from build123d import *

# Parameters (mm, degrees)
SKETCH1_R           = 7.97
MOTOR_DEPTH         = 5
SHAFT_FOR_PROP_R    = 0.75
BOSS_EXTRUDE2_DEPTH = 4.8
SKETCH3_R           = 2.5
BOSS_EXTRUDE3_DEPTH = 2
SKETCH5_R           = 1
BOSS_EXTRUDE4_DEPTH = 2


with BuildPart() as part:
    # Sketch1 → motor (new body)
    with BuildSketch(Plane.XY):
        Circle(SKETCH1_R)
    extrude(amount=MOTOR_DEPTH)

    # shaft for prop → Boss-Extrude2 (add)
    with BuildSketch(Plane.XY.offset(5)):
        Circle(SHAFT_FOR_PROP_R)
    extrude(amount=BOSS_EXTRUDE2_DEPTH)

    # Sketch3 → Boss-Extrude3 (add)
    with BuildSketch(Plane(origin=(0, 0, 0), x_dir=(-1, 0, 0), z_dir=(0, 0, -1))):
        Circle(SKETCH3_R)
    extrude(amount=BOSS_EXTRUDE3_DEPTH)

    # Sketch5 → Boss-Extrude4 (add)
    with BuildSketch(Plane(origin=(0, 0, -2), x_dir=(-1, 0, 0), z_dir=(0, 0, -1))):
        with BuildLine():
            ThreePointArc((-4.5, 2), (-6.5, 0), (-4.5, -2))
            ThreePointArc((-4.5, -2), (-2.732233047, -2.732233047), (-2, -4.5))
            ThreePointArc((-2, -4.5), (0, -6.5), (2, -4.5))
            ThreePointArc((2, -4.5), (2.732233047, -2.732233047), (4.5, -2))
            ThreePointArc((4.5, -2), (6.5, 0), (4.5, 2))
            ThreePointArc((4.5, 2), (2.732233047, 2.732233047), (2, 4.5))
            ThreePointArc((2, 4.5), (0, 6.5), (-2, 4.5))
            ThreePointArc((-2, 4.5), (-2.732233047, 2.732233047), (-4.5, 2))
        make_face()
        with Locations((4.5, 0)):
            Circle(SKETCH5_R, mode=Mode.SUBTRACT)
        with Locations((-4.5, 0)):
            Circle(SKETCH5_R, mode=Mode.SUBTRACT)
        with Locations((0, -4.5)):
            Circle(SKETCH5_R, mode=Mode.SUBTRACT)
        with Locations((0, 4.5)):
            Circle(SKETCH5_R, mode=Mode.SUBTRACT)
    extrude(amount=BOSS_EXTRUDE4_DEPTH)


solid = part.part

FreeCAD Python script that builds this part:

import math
import FreeCAD as App
import Part
import Sketcher
from FreeCAD import Vector

doc = App.newDocument("Part")
body = doc.addObject("PartDesign::Body", "Body")

sketch1 = doc.addObject("Sketcher::SketchObject", "Sketch")
body.addObject(sketch1)
sketch1.AttachmentSupport = (doc.XY_Plane, [""])
sketch1.MapMode = "FlatFace"
sketch1.addGeometry(Part.Circle(Vector(0, 0, 0), Vector(0, 0, 1), 8), False)
sketch1.addConstraint(Sketcher.Constraint("Coincident", 0, 3, -1, 1))
sketch1.addConstraint(Sketcher.Constraint("Diameter", 0, 15.94))
pad1 = doc.addObject("PartDesign::Pad", "Pad")
body.addObject(pad1)
pad1.Profile = sketch1
pad1.Length = 5

sketch2 = doc.addObject("Sketcher::SketchObject", "Sketch001")
body.addObject(sketch2)
sketch2.AttachmentSupport = (doc.XY_Plane, [""])
sketch2.MapMode = "FlatFace"
sketch2.AttachmentOffset = App.Placement(Vector(0, 0, 5), App.Rotation())
sketch2.addGeometry(Part.Circle(Vector(0, 0, 0), Vector(0, 0, 1), 0.8), False)
sketch2.addConstraint(Sketcher.Constraint("Coincident", 0, 3, -1, 1))
sketch2.addConstraint(Sketcher.Constraint("Diameter", 0, 1.5))
pad2 = doc.addObject("PartDesign::Pad", "Pad001")
body.addObject(pad2)
pad2.Profile = sketch2
pad2.Length = 4.8

sketch3 = doc.addObject("Sketcher::SketchObject", "Sketch002")
body.addObject(sketch3)
sketch3.AttachmentSupport = (doc.XY_Plane, [""])
sketch3.MapMode = "FlatFace"
sketch3.addGeometry(Part.Circle(Vector(0, 0, 0), Vector(0, 0, 1), 2.5), False)
sketch3.addConstraint(Sketcher.Constraint("Coincident", 0, 3, -1, 1))
sketch3.addConstraint(Sketcher.Constraint("Diameter", 0, 5.0))
pad3 = doc.addObject("PartDesign::Pad", "Pad002")
body.addObject(pad3)
pad3.Profile = sketch3
pad3.Length = 2
pad3.Reversed = True

sketch4 = doc.addObject("Sketcher::SketchObject", "Sketch003")
body.addObject(sketch4)
sketch4.AttachmentSupport = (doc.XY_Plane, [""])
sketch4.MapMode = "FlatFace"
sketch4.AttachmentOffset = App.Placement(Vector(0, 0, -2), App.Rotation())
sketch4.addGeometry(Part.ArcOfCircle(Part.Circle(Vector(4.5, 0, 0), Vector(0, 0, 1), 2), math.radians(-90), math.radians(90)), False)
sketch4.addGeometry(Part.ArcOfCircle(Part.Circle(Vector(4.5, -4.5, 0), Vector(0, 0, 1), 2.5), math.radians(90), math.radians(180)), False)
sketch4.addGeometry(Part.ArcOfCircle(Part.Circle(Vector(0, -4.5, 0), Vector(0, 0, 1), 2), math.radians(180), math.radians(360)), False)
sketch4.addGeometry(Part.ArcOfCircle(Part.Circle(Vector(-4.5, -4.5, 0), Vector(0, 0, 1), 2.5), math.radians(0), math.radians(90)), False)
sketch4.addGeometry(Part.ArcOfCircle(Part.Circle(Vector(-4.5, 0, 0), Vector(0, 0, 1), 2), math.radians(90), math.radians(270)), False)
sketch4.addGeometry(Part.ArcOfCircle(Part.Circle(Vector(-4.5, 4.5, 0), Vector(0, 0, 1), 2.5), math.radians(-90), math.radians(0)), False)
sketch4.addGeometry(Part.ArcOfCircle(Part.Circle(Vector(0, 4.5, 0), Vector(0, 0, 1), 2), math.radians(0), math.radians(180)), False)
sketch4.addGeometry(Part.ArcOfCircle(Part.Circle(Vector(4.5, 4.5, 0), Vector(0, 0, 1), 2.5), math.radians(180), math.radians(270)), False)
sketch4.addGeometry(Part.Circle(Vector(0, -4.5, 0), Vector(0, 0, 1), 1), False)
sketch4.addGeometry(Part.Circle(Vector(4.5, 0, 0), Vector(0, 0, 1), 1), False)
sketch4.addGeometry(Part.Circle(Vector(-4.5, 0, 0), Vector(0, 0, 1), 1), False)
sketch4.addGeometry(Part.Circle(Vector(0, 4.5, 0), Vector(0, 0, 1), 1), False)
sketch4.addConstraint(Sketcher.Constraint("Tangent", 0, 1, 1, 1))
sketch4.addConstraint(Sketcher.Constraint("Tangent", 1, 2, 2, 2))
sketch4.addConstraint(Sketcher.Constraint("Tangent", 2, 1, 3, 1))
sketch4.addConstraint(Sketcher.Constraint("Tangent", 3, 2, 4, 2))
sketch4.addConstraint(Sketcher.Constraint("Tangent", 4, 1, 5, 1))
sketch4.addConstraint(Sketcher.Constraint("Tangent", 5, 2, 6, 2))
sketch4.addConstraint(Sketcher.Constraint("Tangent", 6, 1, 7, 1))
sketch4.addConstraint(Sketcher.Constraint("Tangent", 7, 2, 0, 2))
sketch4.addConstraint(Sketcher.Constraint("Coincident", 8, 3, 2, 3))
sketch4.addConstraint(Sketcher.Constraint("Coincident", 9, 3, 0, 3))
sketch4.addConstraint(Sketcher.Constraint("Coincident", 10, 3, 4, 3))
sketch4.addConstraint(Sketcher.Constraint("Coincident", 11, 3, 6, 3))
sketch4.addConstraint(Sketcher.Constraint("Equal", 0, 2))
sketch4.addConstraint(Sketcher.Constraint("Equal", 1, 3))
sketch4.addConstraint(Sketcher.Constraint("Equal", 2, 4))
sketch4.addConstraint(Sketcher.Constraint("Equal", 3, 5))
sketch4.addConstraint(Sketcher.Constraint("Equal", 4, 6))
sketch4.addConstraint(Sketcher.Constraint("Equal", 5, 7))
sketch4.addConstraint(Sketcher.Constraint("Equal", 8, 9))
sketch4.addConstraint(Sketcher.Constraint("Equal", 9, 10))
sketch4.addConstraint(Sketcher.Constraint("Equal", 10, 11))
sketch4.addConstraint(Sketcher.Constraint("Symmetric", 0, 3, 4, 3, -1, 1))
sketch4.addConstraint(Sketcher.Constraint("Symmetric", 2, 3, 6, 3, -1, 1))
sketch4.addConstraint(Sketcher.Constraint("Symmetric", 1, 3, 3, 3, -2))
sketch4.addConstraint(Sketcher.Constraint("Horizontal", 1, 3, 2, 3))
sketch4.addConstraint(Sketcher.Constraint("Vertical", 0, 3, 1, 3))
sketch4.addConstraint(Sketcher.Constraint("Diameter", 8, 2.0))
sketch4.addConstraint(Sketcher.Constraint("Radius", 0, 2.0))
sketch4.addConstraint(Sketcher.Constraint("Radius", 1, 2.5))
pad4 = doc.addObject("PartDesign::Pad", "Pad003")
body.addObject(pad4)
pad4.Profile = sketch4
pad4.Length = 2
pad4.Reversed = True

doc.recompute()
